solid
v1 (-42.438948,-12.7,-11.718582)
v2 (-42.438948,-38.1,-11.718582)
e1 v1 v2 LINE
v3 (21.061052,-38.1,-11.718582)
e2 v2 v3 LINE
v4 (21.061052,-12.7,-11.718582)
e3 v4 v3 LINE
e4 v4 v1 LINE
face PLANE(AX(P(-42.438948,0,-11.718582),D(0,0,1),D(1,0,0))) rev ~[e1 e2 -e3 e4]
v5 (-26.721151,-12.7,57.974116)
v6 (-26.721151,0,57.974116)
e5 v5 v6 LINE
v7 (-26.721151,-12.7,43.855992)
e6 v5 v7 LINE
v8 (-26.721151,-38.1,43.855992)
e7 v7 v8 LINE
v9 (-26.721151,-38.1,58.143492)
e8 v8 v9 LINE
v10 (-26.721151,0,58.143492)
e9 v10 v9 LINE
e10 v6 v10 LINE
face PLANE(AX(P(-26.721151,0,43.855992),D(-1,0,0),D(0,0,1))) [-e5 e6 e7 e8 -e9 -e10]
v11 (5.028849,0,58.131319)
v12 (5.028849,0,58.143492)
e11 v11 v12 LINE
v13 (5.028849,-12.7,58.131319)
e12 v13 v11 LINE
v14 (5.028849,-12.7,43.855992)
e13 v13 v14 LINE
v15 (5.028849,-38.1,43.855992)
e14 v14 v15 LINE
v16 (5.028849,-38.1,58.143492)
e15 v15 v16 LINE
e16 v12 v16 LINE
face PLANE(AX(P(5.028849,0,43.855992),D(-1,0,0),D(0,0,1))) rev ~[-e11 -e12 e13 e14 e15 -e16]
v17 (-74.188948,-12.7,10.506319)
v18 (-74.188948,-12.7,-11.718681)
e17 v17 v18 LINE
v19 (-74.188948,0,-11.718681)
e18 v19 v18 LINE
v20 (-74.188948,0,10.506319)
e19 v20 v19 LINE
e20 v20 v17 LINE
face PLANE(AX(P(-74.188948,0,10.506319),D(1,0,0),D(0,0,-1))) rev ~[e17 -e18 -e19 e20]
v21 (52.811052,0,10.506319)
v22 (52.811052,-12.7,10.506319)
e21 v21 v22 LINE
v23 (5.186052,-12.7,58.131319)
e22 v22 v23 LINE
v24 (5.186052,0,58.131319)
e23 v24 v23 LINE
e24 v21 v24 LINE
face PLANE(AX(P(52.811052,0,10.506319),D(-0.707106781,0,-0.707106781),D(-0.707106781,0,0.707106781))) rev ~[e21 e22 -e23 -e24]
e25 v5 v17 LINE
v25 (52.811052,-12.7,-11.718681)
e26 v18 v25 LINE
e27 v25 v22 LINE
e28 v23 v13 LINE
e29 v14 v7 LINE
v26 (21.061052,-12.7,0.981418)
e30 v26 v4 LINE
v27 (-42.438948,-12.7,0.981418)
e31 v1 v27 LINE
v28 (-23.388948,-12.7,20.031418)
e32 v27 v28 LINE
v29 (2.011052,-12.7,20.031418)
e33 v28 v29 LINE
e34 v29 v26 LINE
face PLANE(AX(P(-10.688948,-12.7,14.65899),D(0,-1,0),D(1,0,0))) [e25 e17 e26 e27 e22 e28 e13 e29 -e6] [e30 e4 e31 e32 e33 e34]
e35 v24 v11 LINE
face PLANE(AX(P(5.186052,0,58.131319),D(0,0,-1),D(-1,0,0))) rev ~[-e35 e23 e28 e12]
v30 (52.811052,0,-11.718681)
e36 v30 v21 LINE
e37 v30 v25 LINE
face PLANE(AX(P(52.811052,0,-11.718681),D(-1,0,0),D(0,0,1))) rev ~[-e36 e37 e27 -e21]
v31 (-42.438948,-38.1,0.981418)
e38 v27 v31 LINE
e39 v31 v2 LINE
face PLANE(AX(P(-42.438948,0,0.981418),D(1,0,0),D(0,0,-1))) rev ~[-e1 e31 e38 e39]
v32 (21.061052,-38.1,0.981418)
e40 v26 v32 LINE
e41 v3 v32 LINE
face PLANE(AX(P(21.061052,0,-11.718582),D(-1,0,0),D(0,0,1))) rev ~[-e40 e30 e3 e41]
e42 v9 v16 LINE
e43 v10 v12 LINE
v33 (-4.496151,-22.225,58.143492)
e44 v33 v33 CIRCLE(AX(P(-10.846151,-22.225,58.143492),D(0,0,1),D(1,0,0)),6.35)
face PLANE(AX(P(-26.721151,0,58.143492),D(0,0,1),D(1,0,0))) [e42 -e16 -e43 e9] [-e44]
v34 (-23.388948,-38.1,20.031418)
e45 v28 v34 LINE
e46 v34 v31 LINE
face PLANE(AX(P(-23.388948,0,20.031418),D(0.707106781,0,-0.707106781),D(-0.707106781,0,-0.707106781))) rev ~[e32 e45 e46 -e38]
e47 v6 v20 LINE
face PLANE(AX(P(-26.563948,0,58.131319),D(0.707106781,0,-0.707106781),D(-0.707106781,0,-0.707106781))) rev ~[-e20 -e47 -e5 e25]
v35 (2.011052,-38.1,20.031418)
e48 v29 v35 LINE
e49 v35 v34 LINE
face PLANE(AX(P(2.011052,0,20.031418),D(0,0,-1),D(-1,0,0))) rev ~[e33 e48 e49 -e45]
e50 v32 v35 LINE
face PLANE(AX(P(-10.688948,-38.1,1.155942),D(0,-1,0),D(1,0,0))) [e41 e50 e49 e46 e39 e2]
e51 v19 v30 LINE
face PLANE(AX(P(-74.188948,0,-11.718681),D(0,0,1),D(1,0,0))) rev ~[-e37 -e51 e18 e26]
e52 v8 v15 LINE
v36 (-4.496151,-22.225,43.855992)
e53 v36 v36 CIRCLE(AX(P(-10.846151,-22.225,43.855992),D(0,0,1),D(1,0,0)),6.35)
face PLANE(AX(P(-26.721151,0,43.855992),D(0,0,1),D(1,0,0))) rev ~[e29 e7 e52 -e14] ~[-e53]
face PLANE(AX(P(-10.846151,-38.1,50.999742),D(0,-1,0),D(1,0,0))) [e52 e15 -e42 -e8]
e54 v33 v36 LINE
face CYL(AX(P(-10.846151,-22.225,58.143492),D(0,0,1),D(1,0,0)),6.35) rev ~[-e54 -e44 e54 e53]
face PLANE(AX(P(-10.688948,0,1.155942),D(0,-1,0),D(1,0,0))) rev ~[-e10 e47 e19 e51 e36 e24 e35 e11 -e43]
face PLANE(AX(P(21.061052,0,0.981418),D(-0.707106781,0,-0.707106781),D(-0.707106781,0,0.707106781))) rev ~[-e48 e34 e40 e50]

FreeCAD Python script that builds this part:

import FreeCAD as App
import Part
import Sketcher

V = App.Vector
Q = App.Units.Quantity

doc = App.newDocument("Part")
body = doc.addObject("PartDesign::Body", "Body")

# Sketch on XZ plane
sketch1 = body.newObject("Sketcher::SketchObject", "Sketch")
sketch1.AttachmentSupport = (doc.getObject("XZ_Plane"), [""])
sketch1.MapMode = "FlatFace"
sketch1.addGeometry(Part.LineSegment(V(-74, 11, 0), V(-74, -12, 0)), False)
sketch1.addGeometry(Part.LineSegment(V(-74, -12, 0), V(53, -12, 0)), False)
sketch1.addGeometry(Part.LineSegment(V(53, -12, 0), V(53, 11, 0)), False)
sketch1.addGeometry(Part.LineSegment(V(53, 11, 0), V(5, 58, 0)), False)
sketch1.addGeometry(Part.LineSegment(V(5, 58, 0), V(-27, 58, 0)), False)
sketch1.addGeometry(Part.LineSegment(V(-27, 58, 0), V(-74, 11, 0)), False)
sketch1.addConstraint(Sketcher.Constraint("Coincident", 0, 2, 1, 1))
sketch1.addConstraint(Sketcher.Constraint("Coincident", 1, 2, 2, 1))
sketch1.addConstraint(Sketcher.Constraint("Coincident", 2, 2, 3, 1))
sketch1.addConstraint(Sketcher.Constraint("Coincident", 3, 2, 4, 1))
sketch1.addConstraint(Sketcher.Constraint("Coincident", 4, 2, 5, 1))
sketch1.addConstraint(Sketcher.Constraint("Coincident", 5, 2, 0, 1))
sketch1.addConstraint(Sketcher.Constraint("Vertical", 0))
sketch1.addConstraint(Sketcher.Constraint("Horizontal", 1))
sketch1.addConstraint(Sketcher.Constraint("Vertical", 2))
sketch1.addConstraint(Sketcher.Constraint("Horizontal", 4))
sketch1.addConstraint(Sketcher.Constraint("Perpendicular", 3, 5))
sketch1.addConstraint(Sketcher.Constraint("Horizontal", 2, 2, 5, 2))
sketch1.addConstraint(Sketcher.Constraint("Equal", 3, 5))
sketch1.addConstraint(Sketcher.Constraint("DistanceX", 1, 1, 1, 2, Q("5 in")))
sketch1.addConstraint(Sketcher.Constraint("DistanceX", 4, 2, 4, 1, Q("1.25 in")))
sketch1.addConstraint(Sketcher.Constraint("DistanceY", 0, 2, 0, 1, Q("0.875 in")))
sketch1.addConstraint(Sketcher.Constraint("DistanceY", 0, 2, -1, 1, Q("11.718681 mm")))
sketch1.addConstraint(Sketcher.Constraint("DistanceX", -1, 1, 1, 2, Q("52.811052 mm")))
pad1 = body.newObject("PartDesign::Pad", "Pad")
pad1.Profile = sketch1
pad1.Length = Q("0.5 in")

# Sketch on XZ plane
sketch2 = body.newObject("Sketcher::SketchObject", "Sketch001")
sketch2.AttachmentSupport = (doc.getObject("XZ_Plane"), [""])
sketch2.MapMode = "FlatFace"
sketch2.addGeometry(Part.LineSegment(V(-42, 1, 0), V(-42, -12, 0)), False)
sketch2.addGeometry(Part.LineSegment(V(-42, -12, 0), V(21, -12, 0)), False)
sketch2.addGeometry(Part.LineSegment(V(21, -12, 0), V(21, 1, 0)), False)
sketch2.addGeometry(Part.LineSegment(V(21, 1, 0), V(2, 20, 0)), False)
sketch2.addGeometry(Part.LineSegment(V(2, 20, 0), V(-23, 20, 0)), False)
sketch2.addGeometry(Part.LineSegment(V(-23, 20, 0), V(-42, 1, 0)), False)
sketch2.addConstraint(Sketcher.Constraint("Coincident", 0, 2, 1, 1))
sketch2.addConstraint(Sketcher.Constraint("Coincident", 1, 2, 2, 1))
sketch2.addConstraint(Sketcher.Constraint("Coincident", 2, 2, 3, 1))
sketch2.addConstraint(Sketcher.Constraint("Coincident", 3, 2, 4, 1))
sketch2.addConstraint(Sketcher.Constraint("Coincident", 4, 2, 5, 1))
sketch2.addConstraint(Sketcher.Constraint("Coincident", 5, 2, 0, 1))
sketch2.addConstraint(Sketcher.Constraint("Vertical", 0))
sketch2.addConstraint(Sketcher.Constraint("Horizontal", 1))
sketch2.addConstraint(Sketcher.Constraint("Vertical", 2))
sketch2.addConstraint(Sketcher.Constraint("Horizontal", 4))
sketch2.addConstraint(Sketcher.Constraint("Perpendicular", 3, 5))
sketch2.addConstraint(Sketcher.Constraint("Horizontal", 2, 2, 5, 2))
sketch2.addConstraint(Sketcher.Constraint("Equal", 3, 5))
sketch2.addConstraint(Sketcher.Constraint("DistanceX", 4, 2, 4, 1, Q("1 in")))
sketch2.addConstraint(Sketcher.Constraint("DistanceX", 1, 1, 1, 2, Q("2.5 in")))
sketch2.addConstraint(Sketcher.Constraint("DistanceY", 0, 2, 0, 1, Q("0.5 in")))
sketch2.addConstraint(Sketcher.Constraint("DistanceX", 0, 2, -1, 1, Q("42.438948 mm")))
sketch2.addConstraint(Sketcher.Constraint("DistanceY", -1, 1, 2, 2, Q("0.981418 mm")))
pad2 = body.newObject("PartDesign::Pad", "Pad001")
pad2.Profile = sketch2
pad2.Length = Q("1.5 in")

# Sketch on XZ plane
sketch3 = body.newObject("Sketcher::SketchObject", "Sketch002")
sketch3.AttachmentSupport = (doc.getObject("XZ_Plane"), [""])
sketch3.MapMode = "FlatFace"
sketch3.addGeometry(Part.LineSegment(V(-27, 58, 0), V(-27, 44, 0)), False)
sketch3.addGeometry(Part.LineSegment(V(-27, 44, 0), V(5, 44, 0)), False)
sketch3.addGeometry(Part.LineSegment(V(5, 44, 0), V(5, 58, 0)), False)
sketch3.addGeometry(Part.LineSegment(V(5, 58, 0), V(-27, 58, 0)), False)
sketch3.addConstraint(Sketcher.Constraint("Coincident", 0, 2, 1, 1))
sketch3.addConstraint(Sketcher.Constraint("Coincident", 1, 2, 2, 1))
sketch3.addConstraint(Sketcher.Constraint("Coincident", 2, 2, 3, 1))
sketch3.addConstraint(Sketcher.Constraint("Coincident", 3, 2, 0, 1))
sketch3.addConstraint(Sketcher.Constraint("Vertical", 0))
sketch3.addConstraint(Sketcher.Constraint("Horizontal", 1))
sketch3.addConstraint(Sketcher.Constraint("Vertical", 2))
sketch3.addConstraint(Sketcher.Constraint("Horizontal", 3))
sketch3.addConstraint(Sketcher.Constraint("DistanceX", 1, 1, 1, 2, Q("1.25 in")))
sketch3.addConstraint(Sketcher.Constraint("DistanceY", 0, 2, 0, 1, Q("0.5625 in")))
sketch3.addConstraint(Sketcher.Constraint("DistanceX", 0, 2, -1, 1, Q("26.721151 mm")))
sketch3.addConstraint(Sketcher.Constraint("DistanceY", -1, 1, 0, 2, Q("43.855992 mm")))
pad3 = body.newObject("PartDesign::Pad", "Pad002")
pad3.Profile = sketch3
pad3.Length = Q("1.5 in")

# Sketch on XY plane
sketch4 = body.newObject("Sketcher::SketchObject", "Sketch003")
sketch4.AttachmentSupport = (doc.getObject("XY_Plane"), [""])
sketch4.MapMode = "FlatFace"
sketch4.AttachmentOffset = App.Placement(V(0, 0, 58.143492), App.Rotation())
sketch4.addGeometry(Part.Circle(V(-11, -22, 0), V(0, 0, 1), 6), False)
sketch4.addConstraint(Sketcher.Constraint("Diameter", 0, Q("0.5 in")))
sketch4.addConstraint(Sketcher.Constraint("DistanceY", 0, 3, -1, 1, Q("0.875 in")))
sketch4.addConstraint(Sketcher.Constraint("DistanceX", 0, 3, -1, 1, Q("10.846151 mm")))
pocket1 = body.newObject("PartDesign::Pocket", "Pocket")
pocket1.Profile = sketch4
pocket1.Length = Q("0.5625 in")

doc.recompute()
